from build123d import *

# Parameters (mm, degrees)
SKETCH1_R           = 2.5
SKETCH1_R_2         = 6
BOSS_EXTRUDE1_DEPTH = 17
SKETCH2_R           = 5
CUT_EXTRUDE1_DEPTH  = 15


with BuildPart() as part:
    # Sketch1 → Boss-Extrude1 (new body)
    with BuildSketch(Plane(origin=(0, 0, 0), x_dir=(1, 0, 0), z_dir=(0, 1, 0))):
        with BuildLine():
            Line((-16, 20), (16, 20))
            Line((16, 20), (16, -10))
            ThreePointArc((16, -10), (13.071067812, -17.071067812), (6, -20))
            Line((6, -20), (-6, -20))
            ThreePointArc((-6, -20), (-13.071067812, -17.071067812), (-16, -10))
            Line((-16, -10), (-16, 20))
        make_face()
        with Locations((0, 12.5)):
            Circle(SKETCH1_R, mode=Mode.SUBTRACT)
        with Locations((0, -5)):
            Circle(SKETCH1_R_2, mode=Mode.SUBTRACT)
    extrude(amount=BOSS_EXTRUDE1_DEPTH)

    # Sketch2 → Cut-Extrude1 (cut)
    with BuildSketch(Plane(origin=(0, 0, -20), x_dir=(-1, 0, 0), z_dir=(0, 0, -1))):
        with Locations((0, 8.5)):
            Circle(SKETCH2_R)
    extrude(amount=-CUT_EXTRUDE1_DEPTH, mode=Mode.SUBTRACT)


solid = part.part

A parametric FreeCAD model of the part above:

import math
import FreeCAD as App
import Part
import Sketcher
from FreeCAD import Vector
Q = App.Units.Quantity

doc = App.newDocument("Part")
body = doc.addObject("PartDesign::Body", "Body")

# Sketch on XZ plane
sketch1 = body.newObject("Sketcher::SketchObject", "Sketch")
sketch1.AttachmentSupport = (doc.getObject("XZ_Plane"), [""])
sketch1.MapMode = "FlatFace"
sketch1.addGeometry([
    Part.LineSegment(Vector(16, -20, 0), Vector(-16, -20, 0)),  # 0
    Part.LineSegment(Vector(-16, -20, 0), Vector(-16, 10, 0)),  # 1
    Part.ArcOfCircle(Part.Circle(Vector(-6, 10, 0), Vector(0, 0, 1), 10), math.radians(90), math.radians(180)),  # 2
    Part.LineSegment(Vector(-6, 20, 0), Vector(6, 20, 0)),  # 3
    Part.ArcOfCircle(Part.Circle(Vector(6, 10, 0), Vector(0, 0, 1), 10), math.radians(0), math.radians(90)),  # 4
    Part.LineSegment(Vector(16, 10, 0), Vector(16, -20, 0)),  # 5
    Part.Circle(Vector(0, 5, 0), Vector(0, 0, 1), 6),  # 6
    Part.Circle(Vector(0, -12.5, 0), Vector(0, 0, 1), 2.5),  # 7
], False)
sketch1.addConstraint([
    Sketcher.Constraint("Coincident", 0, 2, 1, 1),
    Sketcher.Constraint("Tangent", 1, 2, 2, 2),
    Sketcher.Constraint("Tangent", 2, 1, 3, 1),
    Sketcher.Constraint("Tangent", 3, 2, 4, 2),
    Sketcher.Constraint("Tangent", 4, 1, 5, 1),
    Sketcher.Constraint("Coincident", 5, 2, 0, 1),
    Sketcher.Constraint("Horizontal", 0),
    Sketcher.Constraint("Vertical", 1),
    Sketcher.Constraint("Horizontal", 3),
    Sketcher.Constraint("Vertical", 5),
    Sketcher.Constraint("Equal", 2, 4),
    Sketcher.Constraint("PointOnObject", 6, 3, -2),
    Sketcher.Constraint("PointOnObject", 7, 3, -2),
    Sketcher.Constraint("Diameter", 6, Q("12 mm")),
    Sketcher.Constraint("Diameter", 7, Q("5 mm")),
    Sketcher.Constraint("Radius", 2, Q("10 mm")),
    Sketcher.Constraint("DistanceX", 0, 2, 0, 1, Q("32 mm")),
    Sketcher.Constraint("DistanceY", 1, 1, 1, 2, Q("30 mm")),
    Sketcher.Constraint("DistanceX", 2, 3, -1, 1, Q("6 mm")),
    Sketcher.Constraint("DistanceY", -1, 1, 2, 3, Q("10 mm")),
    Sketcher.Constraint("DistanceY", -1, 1, 6, 3, Q("5 mm")),
    Sketcher.Constraint("DistanceY", 7, 3, -1, 1, Q("12.5 mm")),
])
pad1 = body.newObject("PartDesign::Pad", "Pad")
pad1.Profile = sketch1
pad1.Length = 17
pad1.Reversed = True

# Sketch on XY plane
sketch2 = body.newObject("Sketcher::SketchObject", "Sketch001")
sketch2.AttachmentSupport = (doc.getObject("XY_Plane"), [""])
sketch2.MapMode = "FlatFace"
sketch2.AttachmentOffset = App.Placement(Vector(0, 0, -20), App.Rotation())
sketch2.addGeometry(Part.Circle(Vector(0, 8, 0), Vector(0, 0, 1), 5), False)
sketch2.addConstraint([
    Sketcher.Constraint("PointOnObject", 0, 3, -2),
    Sketcher.Constraint("Diameter", 0, Q("10 mm")),
    Sketcher.Constraint("DistanceY", -1, 1, 0, 3, Q("8.5 mm")),
])
pocket1 = body.newObject("PartDesign::Pocket", "Pocket")
pocket1.Profile = sketch2
pocket1.Length = 15
pocket1.Reversed = True

doc.recompute()
